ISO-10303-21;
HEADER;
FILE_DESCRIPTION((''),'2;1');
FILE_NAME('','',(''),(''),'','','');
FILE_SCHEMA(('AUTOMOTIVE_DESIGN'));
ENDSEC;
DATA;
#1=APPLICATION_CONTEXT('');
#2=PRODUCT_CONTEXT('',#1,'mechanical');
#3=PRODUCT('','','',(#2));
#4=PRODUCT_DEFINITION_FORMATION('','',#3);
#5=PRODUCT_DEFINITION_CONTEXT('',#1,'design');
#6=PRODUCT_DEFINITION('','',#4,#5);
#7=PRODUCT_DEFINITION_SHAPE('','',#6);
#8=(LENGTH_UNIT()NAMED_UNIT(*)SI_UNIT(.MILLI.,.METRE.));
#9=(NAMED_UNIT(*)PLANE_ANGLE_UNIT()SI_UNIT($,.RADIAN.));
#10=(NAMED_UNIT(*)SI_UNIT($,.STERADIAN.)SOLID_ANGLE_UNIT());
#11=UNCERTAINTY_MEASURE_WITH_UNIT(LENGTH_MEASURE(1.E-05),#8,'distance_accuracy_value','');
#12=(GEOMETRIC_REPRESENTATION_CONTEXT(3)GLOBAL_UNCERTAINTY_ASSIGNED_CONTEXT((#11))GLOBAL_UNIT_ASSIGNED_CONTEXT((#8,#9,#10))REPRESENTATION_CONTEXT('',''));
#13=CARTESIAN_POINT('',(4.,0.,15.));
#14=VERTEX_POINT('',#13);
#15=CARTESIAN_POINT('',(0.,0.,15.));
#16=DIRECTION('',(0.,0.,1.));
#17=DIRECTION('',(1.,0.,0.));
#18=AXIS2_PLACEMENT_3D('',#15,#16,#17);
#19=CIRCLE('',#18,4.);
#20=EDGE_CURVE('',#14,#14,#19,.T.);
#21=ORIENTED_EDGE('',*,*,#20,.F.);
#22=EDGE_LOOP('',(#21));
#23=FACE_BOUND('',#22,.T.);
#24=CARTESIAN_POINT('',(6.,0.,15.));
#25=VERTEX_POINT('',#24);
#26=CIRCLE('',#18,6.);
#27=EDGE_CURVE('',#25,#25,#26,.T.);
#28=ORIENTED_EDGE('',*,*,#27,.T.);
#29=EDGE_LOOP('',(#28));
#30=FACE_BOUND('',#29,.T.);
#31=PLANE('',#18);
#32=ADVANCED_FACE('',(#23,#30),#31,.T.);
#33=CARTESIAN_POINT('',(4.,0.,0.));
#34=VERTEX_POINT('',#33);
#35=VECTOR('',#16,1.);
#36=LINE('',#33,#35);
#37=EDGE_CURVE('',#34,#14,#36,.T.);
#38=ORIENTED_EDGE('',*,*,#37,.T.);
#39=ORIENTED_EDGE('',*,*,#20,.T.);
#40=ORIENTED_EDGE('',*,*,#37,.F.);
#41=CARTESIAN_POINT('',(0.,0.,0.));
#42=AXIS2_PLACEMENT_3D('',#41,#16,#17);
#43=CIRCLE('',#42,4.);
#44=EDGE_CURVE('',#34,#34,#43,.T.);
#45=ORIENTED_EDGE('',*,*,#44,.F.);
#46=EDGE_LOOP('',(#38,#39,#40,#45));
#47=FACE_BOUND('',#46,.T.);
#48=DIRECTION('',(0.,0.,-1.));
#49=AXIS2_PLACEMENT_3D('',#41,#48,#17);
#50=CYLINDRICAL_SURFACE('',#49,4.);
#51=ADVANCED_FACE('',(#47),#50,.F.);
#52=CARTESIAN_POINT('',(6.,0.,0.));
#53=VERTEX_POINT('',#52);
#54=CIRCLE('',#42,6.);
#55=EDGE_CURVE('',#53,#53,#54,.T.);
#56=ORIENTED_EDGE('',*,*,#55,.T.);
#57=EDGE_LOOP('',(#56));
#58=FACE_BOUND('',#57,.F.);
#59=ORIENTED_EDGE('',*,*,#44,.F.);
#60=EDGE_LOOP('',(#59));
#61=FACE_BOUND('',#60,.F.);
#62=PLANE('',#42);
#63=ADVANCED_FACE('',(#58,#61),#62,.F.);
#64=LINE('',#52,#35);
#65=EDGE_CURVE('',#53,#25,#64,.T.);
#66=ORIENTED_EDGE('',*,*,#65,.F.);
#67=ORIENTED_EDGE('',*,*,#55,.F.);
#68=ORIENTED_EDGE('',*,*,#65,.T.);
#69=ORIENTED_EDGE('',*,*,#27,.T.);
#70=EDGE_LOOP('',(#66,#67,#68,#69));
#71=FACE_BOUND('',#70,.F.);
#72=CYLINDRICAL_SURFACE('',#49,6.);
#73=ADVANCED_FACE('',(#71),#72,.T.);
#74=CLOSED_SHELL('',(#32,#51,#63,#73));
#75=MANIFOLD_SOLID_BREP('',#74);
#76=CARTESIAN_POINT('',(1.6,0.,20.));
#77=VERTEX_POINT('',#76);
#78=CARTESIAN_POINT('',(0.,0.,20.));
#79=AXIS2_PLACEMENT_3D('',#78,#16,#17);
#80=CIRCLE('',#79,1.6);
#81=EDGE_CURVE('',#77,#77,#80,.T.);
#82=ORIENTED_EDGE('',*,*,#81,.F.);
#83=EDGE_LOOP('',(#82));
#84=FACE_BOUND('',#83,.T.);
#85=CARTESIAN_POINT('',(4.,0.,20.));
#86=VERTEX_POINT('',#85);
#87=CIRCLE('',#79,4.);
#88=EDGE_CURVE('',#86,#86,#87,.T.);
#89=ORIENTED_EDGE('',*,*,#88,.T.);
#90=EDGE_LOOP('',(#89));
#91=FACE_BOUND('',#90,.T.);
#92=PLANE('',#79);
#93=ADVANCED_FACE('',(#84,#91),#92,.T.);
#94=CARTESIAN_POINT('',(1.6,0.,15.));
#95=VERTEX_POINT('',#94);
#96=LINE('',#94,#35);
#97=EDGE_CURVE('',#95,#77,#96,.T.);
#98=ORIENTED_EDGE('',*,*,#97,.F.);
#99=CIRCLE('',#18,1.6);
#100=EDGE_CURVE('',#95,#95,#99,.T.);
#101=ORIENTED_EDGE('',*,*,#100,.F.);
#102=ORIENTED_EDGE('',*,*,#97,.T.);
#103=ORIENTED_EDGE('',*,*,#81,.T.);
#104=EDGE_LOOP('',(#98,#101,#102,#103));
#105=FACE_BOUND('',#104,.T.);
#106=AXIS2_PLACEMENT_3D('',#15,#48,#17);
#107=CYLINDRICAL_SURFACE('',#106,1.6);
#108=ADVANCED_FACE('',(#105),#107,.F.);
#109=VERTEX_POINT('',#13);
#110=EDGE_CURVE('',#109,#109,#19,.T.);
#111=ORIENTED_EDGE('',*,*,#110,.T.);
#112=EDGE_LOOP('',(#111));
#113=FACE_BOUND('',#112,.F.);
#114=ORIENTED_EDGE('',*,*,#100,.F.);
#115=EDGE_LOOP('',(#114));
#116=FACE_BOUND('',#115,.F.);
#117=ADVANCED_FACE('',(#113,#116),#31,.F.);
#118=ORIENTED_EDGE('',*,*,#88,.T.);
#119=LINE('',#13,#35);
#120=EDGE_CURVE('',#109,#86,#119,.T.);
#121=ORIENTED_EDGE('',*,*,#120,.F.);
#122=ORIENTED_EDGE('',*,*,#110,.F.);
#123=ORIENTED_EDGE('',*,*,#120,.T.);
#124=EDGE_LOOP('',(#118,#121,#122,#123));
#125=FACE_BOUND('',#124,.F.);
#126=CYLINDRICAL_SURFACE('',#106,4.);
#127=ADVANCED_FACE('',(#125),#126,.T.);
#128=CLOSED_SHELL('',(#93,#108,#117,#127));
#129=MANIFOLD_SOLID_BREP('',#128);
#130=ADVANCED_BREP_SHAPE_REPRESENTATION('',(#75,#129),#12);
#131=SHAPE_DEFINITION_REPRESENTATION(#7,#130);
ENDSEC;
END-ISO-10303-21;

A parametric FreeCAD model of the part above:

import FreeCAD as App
import Part
import Sketcher
from FreeCAD import Vector

doc = App.newDocument("Part")
body = doc.addObject("PartDesign::Body", "Body")
body.AllowCompound = True

# Sketch on XY plane
sketch1 = doc.addObject("Sketcher::SketchObject", "Sketch")
body.addObject(sketch1)
sketch1.AttachmentSupport = (doc.XY_Plane, [""])
sketch1.MapMode = "FlatFace"
sketch1.addGeometry([
    Part.Circle(Vector(0, 0, 0), Vector(0, 0, 1), 6),
    Part.Circle(Vector(0, 0, 0), Vector(0, 0, 1), 4),
], False)
sketch1.addConstraint([
    Sketcher.Constraint("Coincident", 0, 3, -1, 1),
    Sketcher.Constraint("Coincident", 1, 3, -1, 1),
    Sketcher.Constraint("Diameter", 0, 12.0),
    Sketcher.Constraint("Diameter", 1, 8.0),
])
pad1 = doc.addObject("PartDesign::Pad", "Pad")
body.addObject(pad1)
pad1.Profile = sketch1
pad1.Length = 15

# Sketch on XY plane
sketch2 = doc.addObject("Sketcher::SketchObject", "Sketch001")
body.addObject(sketch2)
sketch2.AttachmentSupport = (doc.XY_Plane, [""])
sketch2.MapMode = "FlatFace"
sketch2.AttachmentOffset = App.Placement(Vector(0, 0, 15), App.Rotation())
sketch2.addGeometry([
    Part.Circle(Vector(0, 0, 0), Vector(0, 0, 1), 4),
    Part.Circle(Vector(0, 0, 0), Vector(0, 0, 1), 1.6),
], False)
sketch2.addConstraint([
    Sketcher.Constraint("Coincident", 0, 3, -1, 1),
    Sketcher.Constraint("Coincident", 1, 3, -1, 1),
    Sketcher.Constraint("Diameter", 1, 3.2),
    Sketcher.Constraint("Diameter", 0, 8.0),
])
pad2 = doc.addObject("PartDesign::Pad", "Pad001")
body.addObject(pad2)
pad2.Profile = sketch2
pad2.Length = 5

doc.recompute()
